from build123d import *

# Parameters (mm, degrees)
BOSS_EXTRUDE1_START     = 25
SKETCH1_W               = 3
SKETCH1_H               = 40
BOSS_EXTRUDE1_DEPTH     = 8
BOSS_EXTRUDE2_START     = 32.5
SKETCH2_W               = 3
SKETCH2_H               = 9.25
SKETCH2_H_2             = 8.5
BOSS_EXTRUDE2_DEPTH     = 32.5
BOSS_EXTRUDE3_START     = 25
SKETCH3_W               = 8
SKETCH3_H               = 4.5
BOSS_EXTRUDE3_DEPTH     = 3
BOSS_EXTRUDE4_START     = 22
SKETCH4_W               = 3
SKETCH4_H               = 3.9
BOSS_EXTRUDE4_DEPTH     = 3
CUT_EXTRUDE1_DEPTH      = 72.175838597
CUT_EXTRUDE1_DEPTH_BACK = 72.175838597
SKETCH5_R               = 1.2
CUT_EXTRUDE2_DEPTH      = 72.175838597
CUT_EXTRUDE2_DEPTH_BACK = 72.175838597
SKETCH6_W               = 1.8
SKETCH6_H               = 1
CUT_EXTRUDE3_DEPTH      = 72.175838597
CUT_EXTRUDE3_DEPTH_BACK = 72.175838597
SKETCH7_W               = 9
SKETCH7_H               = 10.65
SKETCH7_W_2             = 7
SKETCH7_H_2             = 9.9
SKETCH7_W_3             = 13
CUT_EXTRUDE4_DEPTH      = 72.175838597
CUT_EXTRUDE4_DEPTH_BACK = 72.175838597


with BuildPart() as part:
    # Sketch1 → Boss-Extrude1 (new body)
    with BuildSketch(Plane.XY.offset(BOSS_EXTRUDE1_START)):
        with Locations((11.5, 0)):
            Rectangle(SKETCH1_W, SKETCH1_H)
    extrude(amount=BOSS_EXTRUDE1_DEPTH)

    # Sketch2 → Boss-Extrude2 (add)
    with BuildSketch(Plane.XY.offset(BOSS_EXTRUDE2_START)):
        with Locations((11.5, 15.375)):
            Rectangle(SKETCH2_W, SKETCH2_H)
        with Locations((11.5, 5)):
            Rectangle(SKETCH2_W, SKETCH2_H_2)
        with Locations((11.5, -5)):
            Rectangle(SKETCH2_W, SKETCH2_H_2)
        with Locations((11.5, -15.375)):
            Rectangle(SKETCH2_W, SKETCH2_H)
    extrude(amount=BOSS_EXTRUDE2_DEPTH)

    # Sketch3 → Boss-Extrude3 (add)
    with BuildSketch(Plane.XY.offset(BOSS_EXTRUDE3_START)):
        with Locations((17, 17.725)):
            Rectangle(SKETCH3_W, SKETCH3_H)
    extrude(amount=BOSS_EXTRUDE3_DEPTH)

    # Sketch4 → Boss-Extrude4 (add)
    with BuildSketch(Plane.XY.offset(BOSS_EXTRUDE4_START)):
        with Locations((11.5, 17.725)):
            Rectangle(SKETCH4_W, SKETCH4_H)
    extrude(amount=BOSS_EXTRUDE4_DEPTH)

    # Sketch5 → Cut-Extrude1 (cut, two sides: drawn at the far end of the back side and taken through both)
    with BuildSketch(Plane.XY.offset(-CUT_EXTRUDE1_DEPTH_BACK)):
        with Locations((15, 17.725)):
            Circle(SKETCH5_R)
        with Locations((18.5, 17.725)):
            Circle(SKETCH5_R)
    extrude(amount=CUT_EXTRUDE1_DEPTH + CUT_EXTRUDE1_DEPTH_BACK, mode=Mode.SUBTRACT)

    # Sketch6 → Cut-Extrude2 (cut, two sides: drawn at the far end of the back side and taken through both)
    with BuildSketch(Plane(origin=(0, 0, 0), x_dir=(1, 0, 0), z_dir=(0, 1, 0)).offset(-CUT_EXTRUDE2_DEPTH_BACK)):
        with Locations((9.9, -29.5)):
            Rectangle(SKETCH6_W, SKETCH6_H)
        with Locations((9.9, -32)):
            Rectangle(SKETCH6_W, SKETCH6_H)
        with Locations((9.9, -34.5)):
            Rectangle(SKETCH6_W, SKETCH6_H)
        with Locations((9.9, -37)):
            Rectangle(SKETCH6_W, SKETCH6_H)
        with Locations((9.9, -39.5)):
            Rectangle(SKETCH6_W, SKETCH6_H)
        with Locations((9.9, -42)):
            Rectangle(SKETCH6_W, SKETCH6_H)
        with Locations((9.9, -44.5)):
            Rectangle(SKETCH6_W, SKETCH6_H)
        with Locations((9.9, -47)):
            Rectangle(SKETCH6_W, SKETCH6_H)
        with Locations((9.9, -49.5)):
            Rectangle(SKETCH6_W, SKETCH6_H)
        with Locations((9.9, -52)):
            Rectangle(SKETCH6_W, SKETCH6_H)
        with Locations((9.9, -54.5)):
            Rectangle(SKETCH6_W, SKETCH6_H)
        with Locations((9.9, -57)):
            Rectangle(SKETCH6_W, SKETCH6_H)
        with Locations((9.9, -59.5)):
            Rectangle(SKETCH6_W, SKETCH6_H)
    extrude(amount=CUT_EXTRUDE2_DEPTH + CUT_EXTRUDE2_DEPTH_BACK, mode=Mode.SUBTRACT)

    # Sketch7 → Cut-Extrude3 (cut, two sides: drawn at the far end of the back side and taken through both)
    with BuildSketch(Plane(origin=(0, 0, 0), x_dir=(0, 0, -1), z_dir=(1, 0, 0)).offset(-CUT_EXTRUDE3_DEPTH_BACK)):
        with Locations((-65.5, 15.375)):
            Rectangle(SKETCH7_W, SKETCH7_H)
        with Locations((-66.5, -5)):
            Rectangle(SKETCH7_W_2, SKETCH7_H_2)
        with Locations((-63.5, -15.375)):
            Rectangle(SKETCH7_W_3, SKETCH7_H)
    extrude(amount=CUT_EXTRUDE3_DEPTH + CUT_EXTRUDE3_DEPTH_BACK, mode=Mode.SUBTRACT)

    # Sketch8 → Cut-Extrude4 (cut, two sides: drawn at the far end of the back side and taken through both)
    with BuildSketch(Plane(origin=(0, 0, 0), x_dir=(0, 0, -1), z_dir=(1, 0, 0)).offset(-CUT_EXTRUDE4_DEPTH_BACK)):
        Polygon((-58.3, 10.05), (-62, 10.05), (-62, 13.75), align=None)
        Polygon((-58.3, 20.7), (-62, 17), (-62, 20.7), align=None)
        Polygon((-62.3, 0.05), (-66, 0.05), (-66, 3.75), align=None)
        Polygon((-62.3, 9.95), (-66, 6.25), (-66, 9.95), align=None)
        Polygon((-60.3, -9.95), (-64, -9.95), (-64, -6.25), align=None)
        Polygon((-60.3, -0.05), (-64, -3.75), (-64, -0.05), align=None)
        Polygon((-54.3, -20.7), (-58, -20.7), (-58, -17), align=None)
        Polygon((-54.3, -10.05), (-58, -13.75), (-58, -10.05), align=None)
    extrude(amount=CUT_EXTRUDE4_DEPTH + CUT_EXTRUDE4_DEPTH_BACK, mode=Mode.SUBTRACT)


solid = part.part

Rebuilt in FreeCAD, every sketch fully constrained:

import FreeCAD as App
import Part
import Sketcher

V = App.Vector
Q = App.Units.Quantity


def add_polygon(sketch, points):
    """Adds a closed chain of lines whose ends are joined by coincident constraints."""
    first, n = sketch.GeometryCount, len(points)
    for a, b in zip(points, points[1:] + points[:1]):
        sketch.addGeometry(Part.LineSegment(App.Vector(*a, 0), App.Vector(*b, 0)), False)
    for i in range(n):
        sketch.addConstraint(Sketcher.Constraint("Coincident", first + i, 2, first + (i + 1) % n, 1))

doc = App.newDocument("Part")
body = doc.addObject("PartDesign::Body", "Body")

# Sketch on XY plane
sketch1 = body.newObject("Sketcher::SketchObject", "Sketch")
sketch1.AttachmentSupport = (doc.getObject("XY_Plane"), [""])
sketch1.MapMode = "FlatFace"
sketch1.AttachmentOffset = App.Placement(V(0, 0, 25), App.Rotation())
add_polygon(sketch1, [(10, 20), (10, -20), (13, -20), (13, 20)])  # lines 0-3
sketch1.addConstraint(Sketcher.Constraint("Vertical", 0))
sketch1.addConstraint(Sketcher.Constraint("Horizontal", 1))
sketch1.addConstraint(Sketcher.Constraint("Vertical", 2))
sketch1.addConstraint(Sketcher.Constraint("Horizontal", 3))
sketch1.addConstraint(Sketcher.Constraint("DistanceX", 1, 1, 1, 2, Q("3 mm")))
sketch1.addConstraint(Sketcher.Constraint("DistanceY", 0, 2, 0, 1, Q("40 mm")))
sketch1.addConstraint(Sketcher.Constraint("DistanceX", -1, 1, 0, 2, Q("10 mm")))
sketch1.addConstraint(Sketcher.Constraint("DistanceY", 0, 2, -1, 1, Q("20 mm")))
pad1 = body.newObject("PartDesign::Pad", "Pad")
pad1.Profile = sketch1
pad1.Length = 8

# Sketch on XY plane
sketch2 = body.newObject("Sketcher::SketchObject", "Sketch001")
sketch2.AttachmentSupport = (doc.getObject("XY_Plane"), [""])
sketch2.MapMode = "FlatFace"
sketch2.AttachmentOffset = App.Placement(V(0, 0, 32.5), App.Rotation())
add_polygon(sketch2, [(10, 20), (10, 10.75), (13, 10.75), (13, 20)])  # lines 0-3
add_polygon(sketch2, [(10, 9.25), (10, 0.75), (13, 0.75), (13, 9.25)])  # lines 4-7
add_polygon(sketch2, [(10, -0.75), (10, -9.25), (13, -9.25), (13, -0.75)])  # lines 8-11
add_polygon(sketch2, [(10, -10.75), (10, -20), (13, -20), (13, -10.75)])  # lines 12-15
sketch2.addConstraint(Sketcher.Constraint("Vertical", 0))
sketch2.addConstraint(Sketcher.Constraint("Horizontal", 1))
sketch2.addConstraint(Sketcher.Constraint("Vertical", 2))
sketch2.addConstraint(Sketcher.Constraint("Horizontal", 3))
sketch2.addConstraint(Sketcher.Constraint("Vertical", 4))
sketch2.addConstraint(Sketcher.Constraint("Horizontal", 5))
sketch2.addConstraint(Sketcher.Constraint("Vertical", 6))
sketch2.addConstraint(Sketcher.Constraint("Horizontal", 7))
sketch2.addConstraint(Sketcher.Constraint("Vertical", 8))
sketch2.addConstraint(Sketcher.Constraint("Horizontal", 9))
sketch2.addConstraint(Sketcher.Constraint("Vertical", 10))
sketch2.addConstraint(Sketcher.Constraint("Horizontal", 11))
sketch2.addConstraint(Sketcher.Constraint("Vertical", 12))
sketch2.addConstraint(Sketcher.Constraint("Horizontal", 13))
sketch2.addConstraint(Sketcher.Constraint("Vertical", 14))
sketch2.addConstraint(Sketcher.Constraint("Horizontal", 15))
sketch2.addConstraint(Sketcher.Constraint("Symmetric", 7, 2, 8, 2, -1))
sketch2.addConstraint(Sketcher.Constraint("Symmetric", 5, 2, 10, 2, -1))
sketch2.addConstraint(Sketcher.Constraint("Symmetric", 3, 2, 12, 2, -1))
sketch2.addConstraint(Sketcher.Constraint("Symmetric", 1, 2, 14, 2, -1))
sketch2.addConstraint(Sketcher.Constraint("Vertical", 3, 2, 4, 2))
sketch2.addConstraint(Sketcher.Constraint("Vertical", 2, 2, 5, 2))
sketch2.addConstraint(Sketcher.Constraint("DistanceX", 1, 1, 1, 2, Q("3 mm")))
sketch2.addConstraint(Sketcher.Constraint("DistanceY", 4, 2, 4, 1, Q("8.5 mm")))
sketch2.addConstraint(Sketcher.Constraint("DistanceX", -1, 1, 0, 2, Q("10 mm")))
sketch2.addConstraint(Sketcher.Constraint("DistanceY", -1, 1, 2, 2, Q("20 mm")))
sketch2.addConstraint(Sketcher.Constraint("DistanceY", 4, 2, 0, 2, Q("10 mm")))
sketch2.addConstraint(Sketcher.Constraint("DistanceY", 8, 2, 4, 2, Q("10 mm")))
pad2 = body.newObject("PartDesign::Pad", "Pad001")
pad2.Profile = sketch2
pad2.Length = 32.5

# Sketch on XY plane
sketch3 = body.newObject("Sketcher::SketchObject", "Sketch002")
sketch3.AttachmentSupport = (doc.getObject("XY_Plane"), [""])
sketch3.MapMode = "FlatFace"
sketch3.AttachmentOffset = App.Placement(V(0, 0, 25), App.Rotation())
add_polygon(sketch3, [(13, 19.975), (13, 15.475), (21, 15.475), (21, 19.975)])  # lines 0-3
sketch3.addConstraint(Sketcher.Constraint("Vertical", 0))
sketch3.addConstraint(Sketcher.Constraint("Horizontal", 1))
sketch3.addConstraint(Sketcher.Constraint("Vertical", 2))
sketch3.addConstraint(Sketcher.Constraint("Horizontal", 3))
sketch3.addConstraint(Sketcher.Constraint("DistanceX", 1, 1, 1, 2, Q("8 mm")))
sketch3.addConstraint(Sketcher.Constraint("DistanceY", 0, 2, 0, 1, Q("4.5 mm")))
sketch3.addConstraint(Sketcher.Constraint("DistanceX", -1, 1, 0, 2, Q("13 mm")))
sketch3.addConstraint(Sketcher.Constraint("DistanceY", -1, 1, 0, 2, Q("15.475 mm")))
pad3 = body.newObject("PartDesign::Pad", "Pad002")
pad3.Profile = sketch3
pad3.Length = 3

# Sketch on XY plane
sketch4 = body.newObject("Sketcher::SketchObject", "Sketch003")
sketch4.AttachmentSupport = (doc.getObject("XY_Plane"), [""])
sketch4.MapMode = "FlatFace"
sketch4.AttachmentOffset = App.Placement(V(0, 0, 22), App.Rotation())
add_polygon(sketch4, [(10, 19.675), (10, 15.775), (13, 15.775), (13, 19.675)])  # lines 0-3
sketch4.addConstraint(Sketcher.Constraint("Vertical", 0))
sketch4.addConstraint(Sketcher.Constraint("Horizontal", 1))
sketch4.addConstraint(Sketcher.Constraint("Vertical", 2))
sketch4.addConstraint(Sketcher.Constraint("Horizontal", 3))
sketch4.addConstraint(Sketcher.Constraint("DistanceX", 1, 1, 1, 2, Q("3 mm")))
sketch4.addConstraint(Sketcher.Constraint("DistanceY", 0, 2, 0, 1, Q("3.9 mm")))
sketch4.addConstraint(Sketcher.Constraint("DistanceX", -1, 1, 0, 2, Q("10 mm")))
sketch4.addConstraint(Sketcher.Constraint("DistanceY", -1, 1, 0, 2, Q("15.775 mm")))
pad4 = body.newObject("PartDesign::Pad", "Pad003")
pad4.Profile = sketch4
pad4.Length = 3

# Sketch on XY plane
sketch5 = body.newObject("Sketcher::SketchObject", "Sketch004")
sketch5.AttachmentSupport = (doc.getObject("XY_Plane"), [""])
sketch5.MapMode = "FlatFace"
sketch5.addGeometry(Part.Circle(V(15, 17.725, 0), V(0, 0, 1), 1.2), False)
sketch5.addGeometry(Part.Circle(V(18.5, 17.725, 0), V(0, 0, 1), 1.2), False)
sketch5.addConstraint(Sketcher.Constraint("Equal", 0, 1))
sketch5.addConstraint(Sketcher.Constraint("Horizontal", 0, 3, 1, 3))
sketch5.addConstraint(Sketcher.Constraint("Diameter", 0, Q("2.4 mm")))
sketch5.addConstraint(Sketcher.Constraint("DistanceX", -1, 1, 0, 3, Q("15 mm")))
sketch5.addConstraint(Sketcher.Constraint("DistanceX", -1, 1, 1, 3, Q("18.5 mm")))
sketch5.addConstraint(Sketcher.Constraint("DistanceY", -1, 1, 0, 3, Q("17.725 mm")))
pocket1 = body.newObject("PartDesign::Pocket", "Pocket")
pocket1.Profile = sketch5
pocket1.Type = "ThroughAll"
pocket1.Midplane = True

# Sketch on XZ plane
sketch6 = body.newObject("Sketcher::SketchObject", "Sketch005")
sketch6.AttachmentSupport = (doc.getObject("XZ_Plane"), [""])
sketch6.MapMode = "FlatFace"
add_polygon(sketch6, [(9, 29), (9, 30), (10.8, 30), (10.8, 29)])  # lines 0-3
add_polygon(sketch6, [(9, 31.5), (9, 32.5), (10.8, 32.5), (10.8, 31.5)])  # lines 4-7
add_polygon(sketch6, [(9, 34), (9, 35), (10.8, 35), (10.8, 34)])  # lines 8-11
add_polygon(sketch6, [(9, 36.5), (9, 37.5), (10.8, 37.5), (10.8, 36.5)])  # lines 12-15
add_polygon(sketch6, [(9, 39), (9, 40), (10.8, 40), (10.8, 39)])  # lines 16-19
add_polygon(sketch6, [(9, 41.5), (9, 42.5), (10.8, 42.5), (10.8, 41.5)])  # lines 20-23
add_polygon(sketch6, [(9, 44), (9, 45), (10.8, 45), (10.8, 44)])  # lines 24-27
add_polygon(sketch6, [(9, 46.5), (9, 47.5), (10.8, 47.5), (10.8, 46.5)])  # lines 28-31
add_polygon(sketch6, [(9, 49), (9, 50), (10.8, 50), (10.8, 49)])  # lines 32-35
add_polygon(sketch6, [(9, 51.5), (9, 52.5), (10.8, 52.5), (10.8, 51.5)])  # lines 36-39
add_polygon(sketch6, [(9, 54), (9, 55), (10.8, 55), (10.8, 54)])  # lines 40-43
add_polygon(sketch6, [(9, 56.5), (9, 57.5), (10.8, 57.5), (10.8, 56.5)])  # lines 44-47
add_polygon(sketch6, [(9, 59), (9, 60), (10.8, 60), (10.8, 59)])  # lines 48-51
sketch6.addConstraint(Sketcher.Constraint("Vertical", 0))
sketch6.addConstraint(Sketcher.Constraint("Horizontal", 1))
sketch6.addConstraint(Sketcher.Constraint("Vertical", 2))
sketch6.addConstraint(Sketcher.Constraint("Horizontal", 3))
sketch6.addConstraint(Sketcher.Constraint("Vertical", 4))
sketch6.addConstraint(Sketcher.Constraint("Horizontal", 5))
sketch6.addConstraint(Sketcher.Constraint("Vertical", 6))
sketch6.addConstraint(Sketcher.Constraint("Horizontal", 7))
sketch6.addConstraint(Sketcher.Constraint("Vertical", 8))
sketch6.addConstraint(Sketcher.Constraint("Horizontal", 9))
sketch6.addConstraint(Sketcher.Constraint("Vertical", 10))
sketch6.addConstraint(Sketcher.Constraint("Horizontal", 11))
sketch6.addConstraint(Sketcher.Constraint("Vertical", 12))
sketch6.addConstraint(Sketcher.Constraint("Horizontal", 13))
sketch6.addConstraint(Sketcher.Constraint("Vertical", 14))
sketch6.addConstraint(Sketcher.Constraint("Horizontal", 15))
sketch6.addConstraint(Sketcher.Constraint("Vertical", 16))
sketch6.addConstraint(Sketcher.Constraint("Horizontal", 17))
sketch6.addConstraint(Sketcher.Constraint("Vertical", 18))
sketch6.addConstraint(Sketcher.Constraint("Horizontal", 19))
sketch6.addConstraint(Sketcher.Constraint("Vertical", 20))
sketch6.addConstraint(Sketcher.Constraint("Horizontal", 21))
sketch6.addConstraint(Sketcher.Constraint("Vertical", 22))
sketch6.addConstraint(Sketcher.Constraint("Horizontal", 23))
sketch6.addConstraint(Sketcher.Constraint("Vertical", 24))
sketch6.addConstraint(Sketcher.Constraint("Horizontal", 25))
sketch6.addConstraint(Sketcher.Constraint("Vertical", 26))
sketch6.addConstraint(Sketcher.Constraint("Horizontal", 27))
sketch6.addConstraint(Sketcher.Constraint("Vertical", 28))
sketch6.addConstraint(Sketcher.Constraint("Horizontal", 29))
sketch6.addConstraint(Sketcher.Constraint("Vertical", 30))
sketch6.addConstraint(Sketcher.Constraint("Horizontal", 31))
sketch6.addConstraint(Sketcher.Constraint("Vertical", 32))
sketch6.addConstraint(Sketcher.Constraint("Horizontal", 33))
sketch6.addConstraint(Sketcher.Constraint("Vertical", 34))
sketch6.addConstraint(Sketcher.Constraint("Horizontal", 35))
sketch6.addConstraint(Sketcher.Constraint("Vertical", 36))
sketch6.addConstraint(Sketcher.Constraint("Horizontal", 37))
sketch6.addConstraint(Sketcher.Constraint("Vertical", 38))
sketch6.addConstraint(Sketcher.Constraint("Horizontal", 39))
sketch6.addConstraint(Sketcher.Constraint("Vertical", 40))
sketch6.addConstraint(Sketcher.Constraint("Horizontal", 41))
sketch6.addConstraint(Sketcher.Constraint("Vertical", 42))
sketch6.addConstraint(Sketcher.Constraint("Horizontal", 43))
sketch6.addConstraint(Sketcher.Constraint("Vertical", 44))
sketch6.addConstraint(Sketcher.Constraint("Horizontal", 45))
sketch6.addConstraint(Sketcher.Constraint("Vertical", 46))
sketch6.addConstraint(Sketcher.Constraint("Horizontal", 47))
sketch6.addConstraint(Sketcher.Constraint("Vertical", 48))
sketch6.addConstraint(Sketcher.Constraint("Horizontal", 49))
sketch6.addConstraint(Sketcher.Constraint("Vertical", 50))
sketch6.addConstraint(Sketcher.Constraint("Horizontal", 51))
sketch6.addConstraint(Sketcher.Constraint("Vertical", 3, 2, 4, 2))
sketch6.addConstraint(Sketcher.Constraint("Vertical", 2, 2, 5, 2))
sketch6.addConstraint(Sketcher.Constraint("Vertical", 7, 2, 8, 2))
sketch6.addConstraint(Sketcher.Constraint("Vertical", 6, 2, 9, 2))
sketch6.addConstraint(Sketcher.Constraint("Vertical", 11, 2, 12, 2))
sketch6.addConstraint(Sketcher.Constraint("Vertical", 10, 2, 13, 2))
sketch6.addConstraint(Sketcher.Constraint("Vertical", 15, 2, 16, 2))
sketch6.addConstraint(Sketcher.Constraint("Vertical", 14, 2, 17, 2))
sketch6.addConstraint(Sketcher.Constraint("Vertical", 19, 2, 20, 2))
sketch6.addConstraint(Sketcher.Constraint("Vertical", 18, 2, 21, 2))
sketch6.addConstraint(Sketcher.Constraint("Vertical", 23, 2, 24, 2))
sketch6.addConstraint(Sketcher.Constraint("Vertical", 22, 2, 25, 2))
sketch6.addConstraint(Sketcher.Constraint("Vertical", 27, 2, 28, 2))
sketch6.addConstraint(Sketcher.Constraint("Vertical", 26, 2, 29, 2))
sketch6.addConstraint(Sketcher.Constraint("Vertical", 31, 2, 32, 2))
sketch6.addConstraint(Sketcher.Constraint("Vertical", 30, 2, 33, 2))
sketch6.addConstraint(Sketcher.Constraint("Vertical", 35, 2, 36, 2))
sketch6.addConstraint(Sketcher.Constraint("Vertical", 34, 2, 37, 2))
sketch6.addConstraint(Sketcher.Constraint("Vertical", 39, 2, 40, 2))
sketch6.addConstraint(Sketcher.Constraint("Vertical", 38, 2, 41, 2))
sketch6.addConstraint(Sketcher.Constraint("Vertical", 43, 2, 44, 2))
sketch6.addConstraint(Sketcher.Constraint("Vertical", 42, 2, 45, 2))
sketch6.addConstraint(Sketcher.Constraint("Vertical", 47, 2, 48, 2))
sketch6.addConstraint(Sketcher.Constraint("Vertical", 46, 2, 49, 2))
sketch6.addConstraint(Sketcher.Constraint("Equal", 2, 4))
sketch6.addConstraint(Sketcher.Constraint("Equal", 6, 8))
sketch6.addConstraint(Sketcher.Constraint("Equal", 10, 12))
sketch6.addConstraint(Sketcher.Constraint("Equal", 14, 16))
sketch6.addConstraint(Sketcher.Constraint("Equal", 18, 20))
sketch6.addConstraint(Sketcher.Constraint("Equal", 22, 24))
sketch6.addConstraint(Sketcher.Constraint("Equal", 26, 28))
sketch6.addConstraint(Sketcher.Constraint("Equal", 30, 32))
sketch6.addConstraint(Sketcher.Constraint("Equal", 34, 36))
sketch6.addConstraint(Sketcher.Constraint("Equal", 38, 40))
sketch6.addConstraint(Sketcher.Constraint("Equal", 42, 44))
sketch6.addConstraint(Sketcher.Constraint("Equal", 46, 48))
sketch6.addConstraint(Sketcher.Constraint("DistanceY", 0, 1, 0, 2, Q("1 mm")))
sketch6.addConstraint(Sketcher.Constraint("DistanceX", 1, 1, 1, 2, Q("1.8 mm")))
sketch6.addConstraint(Sketcher.Constraint("DistanceX", -1, 1, 0, 2, Q("9 mm")))
sketch6.addConstraint(Sketcher.Constraint("DistanceY", -1, 1, 0, 2, Q("30 mm")))
sketch6.addConstraint(Sketcher.Constraint("DistanceY", -1, 1, 8, 2, Q("35 mm")))
sketch6.addConstraint(Sketcher.Constraint("DistanceY", -1, 1, 16, 2, Q("40 mm")))
sketch6.addConstraint(Sketcher.Constraint("DistanceY", -1, 1, 24, 2, Q("45 mm")))
sketch6.addConstraint(Sketcher.Constraint("DistanceY", -1, 1, 32, 2, Q("50 mm")))
sketch6.addConstraint(Sketcher.Constraint("DistanceY", -1, 1, 40, 2, Q("55 mm")))
sketch6.addConstraint(Sketcher.Constraint("DistanceY", -1, 1, 48, 2, Q("60 mm")))
sketch6.addConstraint(Sketcher.Constraint("DistanceY", 4, 2, 12, 2, Q("5 mm")))
sketch6.addConstraint(Sketcher.Constraint("DistanceY", 12, 2, 20, 2, Q("5 mm")))
sketch6.addConstraint(Sketcher.Constraint("DistanceY", 20, 2, 28, 2, Q("5 mm")))
sketch6.addConstraint(Sketcher.Constraint("DistanceY", 28, 2, 36, 2, Q("5 mm")))
sketch6.addConstraint(Sketcher.Constraint("DistanceY", 36, 2, 44, 2, Q("5 mm")))
sketch6.addConstraint(Sketcher.Constraint("DistanceY", -1, 1, 4, 2, Q("32.5 mm")))
pocket2 = body.newObject("PartDesign::Pocket", "Pocket001")
pocket2.Profile = sketch6
pocket2.Type = "ThroughAll"
pocket2.Midplane = True

# Sketch on YZ plane
sketch7 = body.newObject("Sketcher::SketchObject", "Sketch006")
sketch7.AttachmentSupport = (doc.getObject("YZ_Plane"), [""])
sketch7.MapMode = "FlatFace"
add_polygon(sketch7, [(20.7, 70), (10.05, 70), (10.05, 61), (20.7, 61)])  # lines 0-3
add_polygon(sketch7, [(-0.05, 70), (-9.95, 70), (-9.95, 63), (-0.05, 63)])  # lines 4-7
add_polygon(sketch7, [(-10.05, 70), (-20.7, 70), (-20.7, 57), (-10.05, 57)])  # lines 8-11
sketch7.addConstraint(Sketcher.Constraint("Horizontal", 0))
sketch7.addConstraint(Sketcher.Constraint("Vertical", 1))
sketch7.addConstraint(Sketcher.Constraint("Horizontal", 2))
sketch7.addConstraint(Sketcher.Constraint("Vertical", 3))
sketch7.addConstraint(Sketcher.Constraint("Horizontal", 4))
sketch7.addConstraint(Sketcher.Constraint("Vertical", 5))
sketch7.addConstraint(Sketcher.Constraint("Horizontal", 6))
sketch7.addConstraint(Sketcher.Constraint("Vertical", 7))
sketch7.addConstraint(Sketcher.Constraint("Horizontal", 8))
sketch7.addConstraint(Sketcher.Constraint("Vertical", 9))
sketch7.addConstraint(Sketcher.Constraint("Horizontal", 10))
sketch7.addConstraint(Sketcher.Constraint("Vertical", 11))
sketch7.addConstraint(Sketcher.Constraint("Symmetric", 3, 2, 8, 2, -2))
sketch7.addConstraint(Sketcher.Constraint("Horizontal", 3, 2, 4, 2))
sketch7.addConstraint(Sketcher.Constraint("Equal", 2, 8))
sketch7.addConstraint(Sketcher.Constraint("DistanceY", 1, 2, 1, 1, Q("9 mm")))
sketch7.addConstraint(Sketcher.Constraint("DistanceY", 5, 2, 5, 1, Q("7 mm")))
sketch7.addConstraint(Sketcher.Constraint("DistanceY", 9, 2, 9, 1, Q("13 mm")))
sketch7.addConstraint(Sketcher.Constraint("DistanceX", 4, 2, 4, 1, Q("9.9 mm")))
sketch7.addConstraint(Sketcher.Constraint("DistanceY", -1, 1, 0, 2, Q("70 mm")))
sketch7.addConstraint(Sketcher.Constraint("DistanceX", 4, 2, 0, 2, Q("20 mm")))
sketch7.addConstraint(Sketcher.Constraint("DistanceX", 10, 2, 6, 2, Q("10 mm")))
sketch7.addConstraint(Sketcher.Constraint("DistanceX", 0, 2, 0, 1, Q("10.65 mm")))
pocket3 = body.newObject("PartDesign::Pocket", "Pocket002")
pocket3.Profile = sketch7
pocket3.Type = "ThroughAll"
pocket3.Midplane = True

# Sketch on YZ plane
sketch8 = body.newObject("Sketcher::SketchObject", "Sketch007")
sketch8.AttachmentSupport = (doc.getObject("YZ_Plane"), [""])
sketch8.MapMode = "FlatFace"
add_polygon(sketch8, [(10.05, 62), (10.05, 58.3), (13.75, 62)])  # lines 0-2
add_polygon(sketch8, [(17, 62), (20.7, 58.3), (20.7, 62)])  # lines 3-5
add_polygon(sketch8, [(0.05, 66), (0.05, 62.3), (3.75, 66)])  # lines 6-8
add_polygon(sketch8, [(6.25, 66), (9.95, 62.3), (9.95, 66)])  # lines 9-11
add_polygon(sketch8, [(-9.95, 64), (-9.95, 60.3), (-6.25, 64)])  # lines 12-14
add_polygon(sketch8, [(-3.75, 64), (-0.05, 60.3), (-0.05, 64)])  # lines 15-17
add_polygon(sketch8, [(-20.7, 58), (-20.7, 54.3), (-17, 58)])  # lines 18-20
add_polygon(sketch8, [(-13.75, 58), (-10.05, 54.3), (-10.05, 58)])  # lines 21-23
sketch8.addConstraint(Sketcher.Constraint("Vertical", 0))
sketch8.addConstraint(Sketcher.Constraint("Horizontal", 2))
sketch8.addConstraint(Sketcher.Constraint("Vertical", 4))
sketch8.addConstraint(Sketcher.Constraint("Horizontal", 5))
sketch8.addConstraint(Sketcher.Constraint("Vertical", 6))
sketch8.addConstraint(Sketcher.Constraint("Horizontal", 8))
sketch8.addConstraint(Sketcher.Constraint("Vertical", 10))
sketch8.addConstraint(Sketcher.Constraint("Horizontal", 11))
sketch8.addConstraint(Sketcher.Constraint("Vertical", 12))
sketch8.addConstraint(Sketcher.Constraint("Horizontal", 14))
sketch8.addConstraint(Sketcher.Constraint("Vertical", 16))
sketch8.addConstraint(Sketcher.Constraint("Horizontal", 17))
sketch8.addConstraint(Sketcher.Constraint("Vertical", 18))
sketch8.addConstraint(Sketcher.Constraint("Horizontal", 20))
sketch8.addConstraint(Sketcher.Constraint("Vertical", 22))
sketch8.addConstraint(Sketcher.Constraint("Horizontal", 23))
sketch8.addConstraint(Sketcher.Constraint("Perpendicular", 1, 3))
sketch8.addConstraint(Sketcher.Constraint("Perpendicular", 3, 7))
sketch8.addConstraint(Sketcher.Constraint("Perpendicular", 7, 9))
sketch8.addConstraint(Sketcher.Constraint("Perpendicular", 9, 13))
sketch8.addConstraint(Sketcher.Constraint("Perpendicular", 13, 15))
sketch8.addConstraint(Sketcher.Constraint("Perpendicular", 15, 19))
sketch8.addConstraint(Sketcher.Constraint("Perpendicular", 19, 21))
sketch8.addConstraint(Sketcher.Constraint("Horizontal", 0, 2, 3, 2))
sketch8.addConstraint(Sketcher.Constraint("Horizontal", 2, 2, 4, 2))
sketch8.addConstraint(Sketcher.Constraint("Horizontal", 6, 2, 9, 2))
sketch8.addConstraint(Sketcher.Constraint("Horizontal", 8, 2, 10, 2))
sketch8.addConstraint(Sketcher.Constraint("Horizontal", 12, 2, 15, 2))
sketch8.addConstraint(Sketcher.Constraint("Horizontal", 14, 2, 16, 2))
sketch8.addConstraint(Sketcher.Constraint("Horizontal", 18, 2, 21, 2))
sketch8.addConstraint(Sketcher.Constraint("Horizontal", 20, 2, 22, 2))
sketch8.addConstraint(Sketcher.Constraint("Equal", 2, 5))
sketch8.addConstraint(Sketcher.Constraint("Equal", 5, 8))
sketch8.addConstraint(Sketcher.Constraint("Equal", 11, 14))
sketch8.addConstraint(Sketcher.Constraint("Equal", 17, 20))
sketch8.addConstraint(Sketcher.Constraint("DistanceX", 2, 2, 2, 1, Q("3.7 mm")))
sketch8.addConstraint(Sketcher.Constraint("DistanceY", -1, 1, 1, 2, Q("62 mm")))
sketch8.addConstraint(Sketcher.Constraint("DistanceX", -1, 1, 5, 2, Q("17 mm")))
sketch8.addConstraint(Sketcher.Constraint("DistanceY", -1, 1, 7, 2, Q("66 mm")))
sketch8.addConstraint(Sketcher.Constraint("DistanceY", -1, 1, 13, 2, Q("64 mm")))
sketch8.addConstraint(Sketcher.Constraint("DistanceX", 19, 2, -1, 1, Q("17 mm")))
sketch8.addConstraint(Sketcher.Constraint("DistanceY", -1, 1, 19, 2, Q("58 mm")))
sketch8.addConstraint(Sketcher.Constraint("DistanceX", 6, 2, 2, 2, Q("10 mm")))
sketch8.addConstraint(Sketcher.Constraint("DistanceX", 12, 2, 6, 2, Q("10 mm")))
sketch8.addConstraint(Sketcher.Constraint("DistanceX", 9, 2, 2, 2, Q("0.1 mm")))
sketch8.addConstraint(Sketcher.Constraint("DistanceX", 15, 2, 6, 2, Q("0.1 mm")))
sketch8.addConstraint(Sketcher.Constraint("DistanceX", 21, 2, 12, 2, Q("0.1 mm")))
sketch8.addConstraint(Sketcher.Constraint("DistanceX", -1, 1, 0, 2, Q("10.05 mm")))
pocket4 = body.newObject("PartDesign::Pocket", "Pocket003")
pocket4.Profile = sketch8
pocket4.Type = "ThroughAll"
pocket4.Midplane = True

doc.recompute()
